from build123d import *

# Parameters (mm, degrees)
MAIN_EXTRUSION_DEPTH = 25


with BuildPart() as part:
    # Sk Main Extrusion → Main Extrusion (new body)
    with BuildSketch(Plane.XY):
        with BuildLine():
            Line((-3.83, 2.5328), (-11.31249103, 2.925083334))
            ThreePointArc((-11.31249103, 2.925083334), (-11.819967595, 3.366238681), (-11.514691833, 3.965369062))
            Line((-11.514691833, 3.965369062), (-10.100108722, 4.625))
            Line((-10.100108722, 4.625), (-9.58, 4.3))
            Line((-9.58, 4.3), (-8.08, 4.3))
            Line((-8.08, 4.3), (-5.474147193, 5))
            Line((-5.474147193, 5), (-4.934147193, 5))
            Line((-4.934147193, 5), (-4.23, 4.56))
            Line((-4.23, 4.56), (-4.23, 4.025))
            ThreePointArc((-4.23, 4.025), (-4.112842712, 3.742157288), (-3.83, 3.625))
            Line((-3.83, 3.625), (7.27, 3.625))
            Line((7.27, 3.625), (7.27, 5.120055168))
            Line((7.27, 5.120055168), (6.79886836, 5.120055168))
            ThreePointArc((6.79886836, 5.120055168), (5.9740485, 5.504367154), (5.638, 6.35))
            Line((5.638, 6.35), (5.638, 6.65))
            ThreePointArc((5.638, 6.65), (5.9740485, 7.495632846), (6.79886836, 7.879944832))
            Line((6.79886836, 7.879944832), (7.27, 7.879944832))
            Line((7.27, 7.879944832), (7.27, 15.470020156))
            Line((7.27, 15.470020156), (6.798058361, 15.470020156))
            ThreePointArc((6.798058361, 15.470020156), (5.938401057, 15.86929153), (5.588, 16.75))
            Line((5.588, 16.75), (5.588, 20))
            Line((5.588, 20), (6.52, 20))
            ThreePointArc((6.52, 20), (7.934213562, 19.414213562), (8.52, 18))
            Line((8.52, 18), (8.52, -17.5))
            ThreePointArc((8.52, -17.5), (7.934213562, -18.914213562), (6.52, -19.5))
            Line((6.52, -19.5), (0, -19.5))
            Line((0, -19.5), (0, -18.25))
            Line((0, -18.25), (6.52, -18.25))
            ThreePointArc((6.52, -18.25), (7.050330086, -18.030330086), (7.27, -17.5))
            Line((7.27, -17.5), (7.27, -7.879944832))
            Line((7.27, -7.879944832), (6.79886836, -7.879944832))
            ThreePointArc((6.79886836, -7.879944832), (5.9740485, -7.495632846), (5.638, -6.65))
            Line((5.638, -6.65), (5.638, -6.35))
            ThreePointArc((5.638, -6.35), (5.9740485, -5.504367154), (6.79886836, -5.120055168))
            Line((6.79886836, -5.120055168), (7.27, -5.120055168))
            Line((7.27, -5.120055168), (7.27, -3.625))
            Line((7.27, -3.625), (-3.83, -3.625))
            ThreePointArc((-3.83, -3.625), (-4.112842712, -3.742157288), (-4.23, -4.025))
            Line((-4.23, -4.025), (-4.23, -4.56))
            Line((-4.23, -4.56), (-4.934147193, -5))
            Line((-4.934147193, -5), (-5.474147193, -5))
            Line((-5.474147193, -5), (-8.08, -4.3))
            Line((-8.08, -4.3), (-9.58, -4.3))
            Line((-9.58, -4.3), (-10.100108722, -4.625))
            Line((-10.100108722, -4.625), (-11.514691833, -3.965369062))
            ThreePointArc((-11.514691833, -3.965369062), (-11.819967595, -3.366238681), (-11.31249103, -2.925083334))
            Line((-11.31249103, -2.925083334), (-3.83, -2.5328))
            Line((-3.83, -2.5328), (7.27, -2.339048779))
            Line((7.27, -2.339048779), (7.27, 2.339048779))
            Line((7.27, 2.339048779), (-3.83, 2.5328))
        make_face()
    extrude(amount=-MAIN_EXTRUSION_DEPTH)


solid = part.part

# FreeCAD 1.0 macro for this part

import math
import FreeCAD as App
import Part
import Sketcher
Q = App.Units.Quantity

doc = App.newDocument("Part")
params = doc.addObject("Spreadsheet::Sheet", "Params")
for row, (alias, value) in enumerate([
    ("sketch1_radius", "2 mm"),
    ("sketch1_radius2", "0.4 mm"),
    ("sketch1_radius3", "0.75 mm"),
    ("sketch1_width", "1.5 mm"),
    ("sketch1_width2", "11.1 mm"),
    ("pad1_length", "25 mm"),
], start=1):
    params.set(f"A{row}", alias)
    params.set(f"B{row}", "=" + value)
    params.setAlias(f"B{row}", alias)

body = doc.addObject("PartDesign::Body", "Body")

# Sketch on XY plane
sketch1 = body.newObject("Sketcher::SketchObject", "Sketch")
sketch1.AttachmentSupport = (doc.getObject("XY_Plane"), [""])
sketch1.MapMode = "FlatFace"
sketch1.addGeometry([
    Part.LineSegment(App.Vector(-11.31, 2.93, 0), App.Vector(-3.83, 2.53, 0)),  # 0
    Part.LineSegment(App.Vector(-3.83, 2.53, 0), App.Vector(7.27, 2.34, 0)),  # 1
    Part.LineSegment(App.Vector(7.27, 2.34, 0), App.Vector(7.27, -2.34, 0)),  # 2
    Part.LineSegment(App.Vector(7.27, -2.34, 0), App.Vector(-3.83, -2.53, 0)),  # 3
    Part.LineSegment(App.Vector(-3.83, -2.53, 0), App.Vector(-11.31, -2.93, 0)),  # 4
    Part.ArcOfCircle(Part.Circle(App.Vector(-11.28, -3.47, 0), App.Vector(0, 0, 1), 0.55), math.radians(93), math.radians(245)),  # 5
    Part.LineSegment(App.Vector(-11.51, -3.97, 0), App.Vector(-10.1, -4.62, 0)),  # 6
    Part.LineSegment(App.Vector(-10.1, -4.62, 0), App.Vector(-9.58, -4.3, 0)),  # 7
    Part.LineSegment(App.Vector(-9.58, -4.3, 0), App.Vector(-8.08, -4.3, 0)),  # 8
    Part.LineSegment(App.Vector(-8.08, -4.3, 0), App.Vector(-5.47, -5, 0)),  # 9
    Part.LineSegment(App.Vector(-5.47, -5, 0), App.Vector(-4.93, -5, 0)),  # 10
    Part.LineSegment(App.Vector(-4.93, -5, 0), App.Vector(-4.23, -4.56, 0)),  # 11
    Part.LineSegment(App.Vector(-4.23, -4.56, 0), App.Vector(-4.23, -4.03, 0)),  # 12
    Part.ArcOfCircle(Part.Circle(App.Vector(-3.83, -4.03, 0), App.Vector(0, 0, 1), 0.4), math.radians(90), math.radians(180)),  # 13
    Part.LineSegment(App.Vector(-3.83, -3.62, 0), App.Vector(7.27, -3.62, 0)),  # 14
    Part.LineSegment(App.Vector(7.27, -3.62, 0), App.Vector(7.27, -5.12, 0)),  # 15
    Part.LineSegment(App.Vector(7.27, -5.12, 0), App.Vector(6.8, -5.12, 0)),  # 16
    Part.ArcOfCircle(Part.Circle(App.Vector(6.87, -6.35, 0), App.Vector(0, 0, 1), 1.23), math.radians(93), math.radians(180)),  # 17
    Part.LineSegment(App.Vector(5.64, -6.35, 0), App.Vector(5.64, -6.65, 0)),  # 18
    Part.ArcOfCircle(Part.Circle(App.Vector(6.87, -6.65, 0), App.Vector(0, 0, 1), 1.23), math.radians(180), math.radians(267)),  # 19
    Part.LineSegment(App.Vector(6.8, -7.88, 0), App.Vector(7.27, -7.88, 0)),  # 20
    Part.LineSegment(App.Vector(7.27, -7.88, 0), App.Vector(7.27, -17.5, 0)),  # 21
    Part.ArcOfCircle(Part.Circle(App.Vector(6.52, -17.5, 0), App.Vector(0, 0, 1), 0.75), math.radians(-90), math.radians(0)),  # 22
    Part.LineSegment(App.Vector(6.52, -18.25, 0), App.Vector(0, -18.25, 0)),  # 23
    Part.LineSegment(App.Vector(0, -18.25, 0), App.Vector(0, -19.5, 0)),  # 24
    Part.LineSegment(App.Vector(0, -19.5, 0), App.Vector(6.52, -19.5, 0)),  # 25
    Part.ArcOfCircle(Part.Circle(App.Vector(6.52, -17.5, 0), App.Vector(0, 0, 1), 2), math.radians(-90), math.radians(0)),  # 26
    Part.LineSegment(App.Vector(8.52, -17.5, 0), App.Vector(8.52, 18, 0)),  # 27
    Part.ArcOfCircle(Part.Circle(App.Vector(6.52, 18, 0), App.Vector(0, 0, 1), 2), math.radians(0), math.radians(90)),  # 28
    Part.LineSegment(App.Vector(6.52, 20, 0), App.Vector(5.59, 20, 0)),  # 29
    Part.LineSegment(App.Vector(5.59, 20, 0), App.Vector(5.59, 16.75, 0)),  # 30
    Part.ArcOfCircle(Part.Circle(App.Vector(6.87, 16.75, 0), App.Vector(0, 0, 1), 1.28), math.radians(180), math.radians(267)),  # 31
    Part.LineSegment(App.Vector(6.8, 15.47, 0), App.Vector(7.27, 15.47, 0)),  # 32
    Part.LineSegment(App.Vector(7.27, 15.47, 0), App.Vector(7.27, 7.88, 0)),  # 33
    Part.LineSegment(App.Vector(7.27, 7.88, 0), App.Vector(6.8, 7.88, 0)),  # 34
    Part.ArcOfCircle(Part.Circle(App.Vector(6.87, 6.65, 0), App.Vector(0, 0, 1), 1.23), math.radians(93), math.radians(180)),  # 35
    Part.LineSegment(App.Vector(5.64, 6.65, 0), App.Vector(5.64, 6.35, 0)),  # 36
    Part.ArcOfCircle(Part.Circle(App.Vector(6.87, 6.35, 0), App.Vector(0, 0, 1), 1.23), math.radians(180), math.radians(267)),  # 37
    Part.LineSegment(App.Vector(6.8, 5.12, 0), App.Vector(7.27, 5.12, 0)),  # 38
    Part.LineSegment(App.Vector(7.27, 5.12, 0), App.Vector(7.27, 3.62, 0)),  # 39
    Part.LineSegment(App.Vector(7.27, 3.62, 0), App.Vector(-3.83, 3.62, 0)),  # 40
    Part.ArcOfCircle(Part.Circle(App.Vector(-3.83, 4.03, 0), App.Vector(0, 0, 1), 0.4), math.radians(-180), math.radians(-90)),  # 41
    Part.LineSegment(App.Vector(-4.23, 4.03, 0), App.Vector(-4.23, 4.56, 0)),  # 42
    Part.LineSegment(App.Vector(-4.23, 4.56, 0), App.Vector(-4.93, 5, 0)),  # 43
    Part.LineSegment(App.Vector(-4.93, 5, 0), App.Vector(-5.47, 5, 0)),  # 44
    Part.LineSegment(App.Vector(-5.47, 5, 0), App.Vector(-8.08, 4.3, 0)),  # 45
    Part.LineSegment(App.Vector(-8.08, 4.3, 0), App.Vector(-9.58, 4.3, 0)),  # 46
    Part.LineSegment(App.Vector(-9.58, 4.3, 0), App.Vector(-10.1, 4.62, 0)),  # 47
    Part.LineSegment(App.Vector(-10.1, 4.62, 0), App.Vector(-11.51, 3.97, 0)),  # 48
    Part.ArcOfCircle(Part.Circle(App.Vector(-11.28, 3.47, 0), App.Vector(0, 0, 1), 0.55), math.radians(115), math.radians(267)),  # 49
], False)
sketch1.addConstraint([
    Sketcher.Constraint("Coincident", 0, 2, 1, 1),
    Sketcher.Constraint("Coincident", 1, 2, 2, 1),
    Sketcher.Constraint("Coincident", 2, 2, 3, 1),
    Sketcher.Constraint("Coincident", 3, 2, 4, 1),
    Sketcher.Constraint("Tangent", 4, 2, 5, 1),
    Sketcher.Constraint("Tangent", 5, 2, 6, 1),
    Sketcher.Constraint("Coincident", 6, 2, 7, 1),
    Sketcher.Constraint("Coincident", 7, 2, 8, 1),
    Sketcher.Constraint("Coincident", 8, 2, 9, 1),
    Sketcher.Constraint("Coincident", 9, 2, 10, 1),
    Sketcher.Constraint("Coincident", 10, 2, 11, 1),
    Sketcher.Constraint("Coincident", 11, 2, 12, 1),
    Sketcher.Constraint("Tangent", 12, 2, 13, 2),
    Sketcher.Constraint("Tangent", 13, 1, 14, 1),
    Sketcher.Constraint("Coincident", 14, 2, 15, 1),
    Sketcher.Constraint("Coincident", 15, 2, 16, 1),
    Sketcher.Constraint("Coincident", 16, 2, 17, 1),
    Sketcher.Constraint("Tangent", 17, 2, 18, 1),
    Sketcher.Constraint("Tangent", 18, 2, 19, 1),
    Sketcher.Constraint("Coincident", 19, 2, 20, 1),
    Sketcher.Constraint("Coincident", 20, 2, 21, 1),
    Sketcher.Constraint("Tangent", 21, 2, 22, 2),
    Sketcher.Constraint("Tangent", 22, 1, 23, 1),
    Sketcher.Constraint("Coincident", 23, 2, 24, 1),
    Sketcher.Constraint("Coincident", 24, 2, 25, 1),
    Sketcher.Constraint("Tangent", 25, 2, 26, 1),
    Sketcher.Constraint("Tangent", 26, 2, 27, 1),
    Sketcher.Constraint("Tangent", 27, 2, 28, 1),
    Sketcher.Constraint("Tangent", 28, 2, 29, 1),
    Sketcher.Constraint("Coincident", 29, 2, 30, 1),
    Sketcher.Constraint("Tangent", 30, 2, 31, 1),
    Sketcher.Constraint("Coincident", 31, 2, 32, 1),
    Sketcher.Constraint("Coincident", 32, 2, 33, 1),
    Sketcher.Constraint("Coincident", 33, 2, 34, 1),
    Sketcher.Constraint("Coincident", 34, 2, 35, 1),
    Sketcher.Constraint("Tangent", 35, 2, 36, 1),
    Sketcher.Constraint("Tangent", 36, 2, 37, 1),
    Sketcher.Constraint("Coincident", 37, 2, 38, 1),
    Sketcher.Constraint("Coincident", 38, 2, 39, 1),
    Sketcher.Constraint("Coincident", 39, 2, 40, 1),
    Sketcher.Constraint("Tangent", 40, 2, 41, 2),
    Sketcher.Constraint("Tangent", 41, 1, 42, 1),
    Sketcher.Constraint("Coincident", 42, 2, 43, 1),
    Sketcher.Constraint("Coincident", 43, 2, 44, 1),
    Sketcher.Constraint("Coincident", 44, 2, 45, 1),
    Sketcher.Constraint("Coincident", 45, 2, 46, 1),
    Sketcher.Constraint("Coincident", 46, 2, 47, 1),
    Sketcher.Constraint("Coincident", 47, 2, 48, 1),
    Sketcher.Constraint("Tangent", 48, 2, 49, 1),
    Sketcher.Constraint("Tangent", 49, 2, 0, 1),
    Sketcher.Constraint("Vertical", 2),
    Sketcher.Constraint("Horizontal", 8),
    Sketcher.Constraint("Horizontal", 10),
    Sketcher.Constraint("Vertical", 12),
    Sketcher.Constraint("Horizontal", 14),
    Sketcher.Constraint("Vertical", 15),
    Sketcher.Constraint("Horizontal", 16),
    Sketcher.Constraint("Vertical", 18),
    Sketcher.Constraint("Horizontal", 20),
    Sketcher.Constraint("Vertical", 21),
    Sketcher.Constraint("Horizontal", 23),
    Sketcher.Constraint("Vertical", 24),
    Sketcher.Constraint("Horizontal", 25),
    Sketcher.Constraint("Vertical", 27),
    Sketcher.Constraint("Horizontal", 29),
    Sketcher.Constraint("Vertical", 30),
    Sketcher.Constraint("Horizontal", 32),
    Sketcher.Constraint("Vertical", 33),
    Sketcher.Constraint("Horizontal", 34),
    Sketcher.Constraint("Vertical", 36),
    Sketcher.Constraint("Horizontal", 38),
    Sketcher.Constraint("Vertical", 39),
    Sketcher.Constraint("Horizontal", 40),
    Sketcher.Constraint("Vertical", 42),
    Sketcher.Constraint("Horizontal", 44),
    Sketcher.Constraint("Horizontal", 46),
    Sketcher.Constraint("Coincident", 26, 3, 22, 3),
    Sketcher.Constraint("Equal", 17, 19),
    Sketcher.Constraint("Equal", 26, 28),
    Sketcher.Constraint("Equal", 19, 35),
    Sketcher.Constraint("Equal", 35, 37),
    Sketcher.Constraint("Equal", 13, 41),
    Sketcher.Constraint("Equal", 5, 49),
    Sketcher.Constraint("Symmetric", 19, 3, 35, 3, -1),
    Sketcher.Constraint("Symmetric", 13, 3, 41, 3, -1),
    Sketcher.Constraint("Symmetric", 5, 3, 49, 3, -1),
    Sketcher.Constraint("Symmetric", 0, 2, 3, 2, -1),
    Sketcher.Constraint("Symmetric", 20, 2, 33, 2, -1),
    Sketcher.Constraint("Symmetric", 16, 2, 37, 2, -1),
    Sketcher.Constraint("Symmetric", 10, 2, 43, 2, -1),
    Sketcher.Constraint("Symmetric", 8, 2, 45, 2, -1),
    Sketcher.Constraint("Symmetric", 6, 2, 47, 2, -1),
    Sketcher.Constraint("PointOnObject", 23, 2, -2),
    Sketcher.Constraint("Parallel", 7, 11),
    Sketcher.Constraint("Parallel", 43, 47),
    Sketcher.Constraint("Vertical", 19, 3, 31, 3),
    Sketcher.Constraint("Vertical", 41, 3, 0, 2),
    Sketcher.Constraint("Vertical", 2, 2, 14, 2),
    Sketcher.Constraint("Vertical", 16, 2, 19, 2),
    Sketcher.Constraint("Vertical", 15, 2, 20, 2),
    Sketcher.Constraint("Vertical", 33, 2, 38, 2),
    Sketcher.Constraint("Vertical", 9, 2, 44, 2),
    Sketcher.Constraint("Vertical", 7, 2, 46, 2),
    Sketcher.Constraint("Equal", 1, 3),
    Sketcher.Constraint("Radius", 26, Q("2 mm")),
    Sketcher.Constraint("Radius", 13, Q("0.4 mm")),
    Sketcher.Constraint("Angle", 1, Q("-1 deg")),
    Sketcher.Constraint("Angle", 6, Q("-25 deg")),
    Sketcher.Constraint("Angle", 7, Q("32 deg")),
    Sketcher.Constraint("Radius", 22, Q("0.75 mm")),
    Sketcher.Constraint("DistanceX", 8, 1, 8, 2, Q("1.5 mm")),
    Sketcher.Constraint("DistanceX", 14, 1, 14, 2, Q("11.1 mm")),
    Sketcher.Constraint("DistanceY", 18, 2, 18, 1, Q("0.3 mm")),
    Sketcher.Constraint("DistanceY", 27, 1, 27, 2, Q("35.5 mm")),
    Sketcher.Constraint("DistanceY", -1, 1, 28, 3, Q("18 mm")),
    Sketcher.Constraint("DistanceY", 9, 2, -1, 1, Q("5 mm")),
    Sketcher.Constraint("Radius", 17, Q("1.232 mm")),
    Sketcher.Constraint("Radius", 31, Q("1.282 mm")),
    Sketcher.Constraint("DistanceX", 10, 1, 10, 2, Q("0.54 mm")),
    Sketcher.Constraint("DistanceX", 23, 2, 23, 1, Q("6.52 mm")),
    Sketcher.Constraint("DistanceY", 30, 2, 30, 1, Q("3.25 mm")),
    Sketcher.Constraint("DistanceY", 7, 2, -1, 1, Q("4.3 mm")),
    Sketcher.Constraint("Radius", 5, Q("0.5461 mm")),
    Sketcher.Constraint("DistanceX", 29, 2, 29, 1, Q("0.932 mm")),
    Sketcher.Constraint("DistanceY", 12, 1, 12, 2, Q("0.535 mm")),
    Sketcher.Constraint("DistanceY", 17, 3, -1, 1, Q("6.35 mm")),
    Sketcher.Constraint("DistanceX", 7, 2, -1, 1, Q("9.58 mm")),
    Sketcher.Constraint("DistanceY", 11, 2, -1, 1, Q("4.56 mm")),
    Sketcher.Constraint("DistanceY", 6, 2, -1, 1, Q("4.625 mm")),
    Sketcher.Constraint("DistanceX", 16, 2, 16, 1, Q("0.471132 mm")),
    Sketcher.Constraint("DistanceX", 32, 1, 32, 2, Q("0.471942 mm")),
    Sketcher.Constraint("DistanceX", 5, 3, -1, 1, Q("11.2839 mm")),
    Sketcher.Constraint("DistanceY", -1, 1, 0, 2, Q("2.5328 mm")),
])
sketch1.setExpression("Constraints[104]", "Params.sketch1_radius")
sketch1.setExpression("Constraints[105]", "Params.sketch1_radius2")
sketch1.setExpression("Constraints[109]", "Params.sketch1_radius3")
sketch1.setExpression("Constraints[110]", "Params.sketch1_width")
sketch1.setExpression("Constraints[111]", "Params.sketch1_width2")
pad1 = body.newObject("PartDesign::Pad", "Pad")
pad1.Profile = sketch1
pad1.setExpression("Length", "Params.pad1_length")
pad1.Reversed = True

doc.recompute()
